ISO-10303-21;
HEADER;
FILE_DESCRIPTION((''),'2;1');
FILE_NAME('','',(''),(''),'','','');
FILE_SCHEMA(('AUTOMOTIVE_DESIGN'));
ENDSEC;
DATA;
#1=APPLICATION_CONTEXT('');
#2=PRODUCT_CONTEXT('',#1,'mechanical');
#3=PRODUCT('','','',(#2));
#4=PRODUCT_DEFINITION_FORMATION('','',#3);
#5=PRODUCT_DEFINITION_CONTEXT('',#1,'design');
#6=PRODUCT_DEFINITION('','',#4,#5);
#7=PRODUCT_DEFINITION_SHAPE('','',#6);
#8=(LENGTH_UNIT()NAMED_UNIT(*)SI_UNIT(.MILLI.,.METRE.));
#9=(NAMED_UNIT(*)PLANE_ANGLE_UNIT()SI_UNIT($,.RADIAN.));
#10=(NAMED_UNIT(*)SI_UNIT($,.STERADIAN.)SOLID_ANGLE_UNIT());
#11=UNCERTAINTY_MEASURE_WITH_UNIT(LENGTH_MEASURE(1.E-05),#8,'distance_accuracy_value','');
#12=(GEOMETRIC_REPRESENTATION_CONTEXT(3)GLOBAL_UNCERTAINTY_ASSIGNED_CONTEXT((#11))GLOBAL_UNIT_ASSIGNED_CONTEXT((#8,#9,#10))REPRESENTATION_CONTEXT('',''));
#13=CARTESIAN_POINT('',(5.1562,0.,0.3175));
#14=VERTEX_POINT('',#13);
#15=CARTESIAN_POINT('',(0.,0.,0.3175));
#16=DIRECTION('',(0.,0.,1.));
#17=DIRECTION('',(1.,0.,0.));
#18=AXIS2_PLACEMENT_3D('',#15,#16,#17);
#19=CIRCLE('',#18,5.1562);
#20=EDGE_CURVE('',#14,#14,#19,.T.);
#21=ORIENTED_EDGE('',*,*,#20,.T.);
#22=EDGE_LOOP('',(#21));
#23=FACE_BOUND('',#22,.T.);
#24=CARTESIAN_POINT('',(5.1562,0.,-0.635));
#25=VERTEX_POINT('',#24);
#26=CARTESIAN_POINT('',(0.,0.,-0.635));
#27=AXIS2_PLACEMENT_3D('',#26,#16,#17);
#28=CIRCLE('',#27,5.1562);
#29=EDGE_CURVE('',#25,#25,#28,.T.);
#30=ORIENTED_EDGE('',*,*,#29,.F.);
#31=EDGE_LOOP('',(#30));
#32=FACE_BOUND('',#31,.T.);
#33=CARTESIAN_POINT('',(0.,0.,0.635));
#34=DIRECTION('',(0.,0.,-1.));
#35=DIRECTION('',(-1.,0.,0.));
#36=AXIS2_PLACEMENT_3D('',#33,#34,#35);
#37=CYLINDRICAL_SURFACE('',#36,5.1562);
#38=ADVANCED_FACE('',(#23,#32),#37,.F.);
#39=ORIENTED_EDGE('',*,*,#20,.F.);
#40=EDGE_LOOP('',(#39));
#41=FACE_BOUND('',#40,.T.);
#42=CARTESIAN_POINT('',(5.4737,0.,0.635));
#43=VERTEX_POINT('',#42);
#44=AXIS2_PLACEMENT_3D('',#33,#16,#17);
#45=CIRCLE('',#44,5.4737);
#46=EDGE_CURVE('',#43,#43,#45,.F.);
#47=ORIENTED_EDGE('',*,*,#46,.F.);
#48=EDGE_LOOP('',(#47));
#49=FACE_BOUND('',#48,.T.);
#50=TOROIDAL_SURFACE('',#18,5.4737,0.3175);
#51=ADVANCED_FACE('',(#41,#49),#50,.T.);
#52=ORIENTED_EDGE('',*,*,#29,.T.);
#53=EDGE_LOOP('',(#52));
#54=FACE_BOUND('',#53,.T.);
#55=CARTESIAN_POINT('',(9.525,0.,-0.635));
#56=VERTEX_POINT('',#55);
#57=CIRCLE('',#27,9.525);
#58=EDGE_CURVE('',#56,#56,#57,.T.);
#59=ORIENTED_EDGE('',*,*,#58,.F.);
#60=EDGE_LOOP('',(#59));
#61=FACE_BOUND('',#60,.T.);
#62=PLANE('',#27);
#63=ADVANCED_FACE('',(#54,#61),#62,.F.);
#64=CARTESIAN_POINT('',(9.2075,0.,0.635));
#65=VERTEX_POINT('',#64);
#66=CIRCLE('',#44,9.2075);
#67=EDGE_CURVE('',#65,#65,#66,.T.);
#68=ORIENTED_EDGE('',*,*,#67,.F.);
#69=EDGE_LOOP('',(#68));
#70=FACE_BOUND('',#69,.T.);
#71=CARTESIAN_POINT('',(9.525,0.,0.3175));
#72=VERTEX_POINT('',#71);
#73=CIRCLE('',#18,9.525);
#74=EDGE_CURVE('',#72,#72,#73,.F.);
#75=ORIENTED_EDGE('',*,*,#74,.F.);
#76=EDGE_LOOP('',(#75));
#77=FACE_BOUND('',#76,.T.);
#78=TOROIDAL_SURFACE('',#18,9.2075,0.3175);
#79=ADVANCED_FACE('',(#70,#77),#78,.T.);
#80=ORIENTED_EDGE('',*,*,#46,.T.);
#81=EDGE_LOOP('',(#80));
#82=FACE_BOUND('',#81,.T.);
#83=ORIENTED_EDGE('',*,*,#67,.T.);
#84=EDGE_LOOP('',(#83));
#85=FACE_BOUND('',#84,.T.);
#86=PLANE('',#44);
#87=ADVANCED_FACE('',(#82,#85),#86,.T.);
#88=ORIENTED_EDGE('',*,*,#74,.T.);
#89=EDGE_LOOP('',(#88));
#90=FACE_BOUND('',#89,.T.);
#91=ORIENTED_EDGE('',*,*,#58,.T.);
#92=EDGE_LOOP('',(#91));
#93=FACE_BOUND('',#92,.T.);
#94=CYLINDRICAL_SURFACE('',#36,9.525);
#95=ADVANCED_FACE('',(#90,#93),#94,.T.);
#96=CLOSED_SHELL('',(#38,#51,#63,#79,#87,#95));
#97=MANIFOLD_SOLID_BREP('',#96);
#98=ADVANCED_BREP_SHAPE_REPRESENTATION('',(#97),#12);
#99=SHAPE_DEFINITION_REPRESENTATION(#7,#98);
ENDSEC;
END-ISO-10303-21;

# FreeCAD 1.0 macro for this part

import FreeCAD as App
import Part
import Sketcher

V = App.Vector
Q = App.Units.Quantity


def edges_at(feature, points):
    """Names of the edges that pass closest to the given points."""
    edges = feature.Shape.Edges
    near = lambda p: min(range(len(edges)), key=lambda i: edges[i].distToShape(Part.Vertex(*p))[0])
    return sorted({f"Edge{near(p) + 1}" for p in points})

doc = App.newDocument("Part")
body = doc.addObject("PartDesign::Body", "Body")

sketch1 = body.newObject("Sketcher::SketchObject", "Sketch")
sketch1.AttachmentSupport = (doc.getObject("XY_Plane"), [""])
sketch1.MapMode = "FlatFace"
sketch1.addGeometry([
    Part.Circle(V(0, 0, 0), V(0, 0, 1), 9.525),
    Part.Circle(V(0, 0, 0), V(0, 0, 1), 5.1562),
], False)
sketch1.addConstraint([
    Sketcher.Constraint("Coincident", 0, 3, -1, 1),
    Sketcher.Constraint("Coincident", 1, 3, -1, 1),
    Sketcher.Constraint("Diameter", 0, Q("0.75 in")),
    Sketcher.Constraint("Diameter", 1, Q("0.406 in")),
])
pad1 = body.newObject("PartDesign::Pad", "Pad")
pad1.Profile = sketch1
pad1.Type = "TwoLengths"
pad1.Length = Q("0.025 in")
pad1.Length2 = Q("0.025 in")
doc.recompute()

fillet = body.newObject("PartDesign::Fillet", "Fillet")
fillet.Base = (pad1, edges_at(pad1, [(-9.525, 0, 0.635), (-5.156, 0, 0.635)]))
fillet.Radius = Q("0.0125 in")

doc.recompute()
